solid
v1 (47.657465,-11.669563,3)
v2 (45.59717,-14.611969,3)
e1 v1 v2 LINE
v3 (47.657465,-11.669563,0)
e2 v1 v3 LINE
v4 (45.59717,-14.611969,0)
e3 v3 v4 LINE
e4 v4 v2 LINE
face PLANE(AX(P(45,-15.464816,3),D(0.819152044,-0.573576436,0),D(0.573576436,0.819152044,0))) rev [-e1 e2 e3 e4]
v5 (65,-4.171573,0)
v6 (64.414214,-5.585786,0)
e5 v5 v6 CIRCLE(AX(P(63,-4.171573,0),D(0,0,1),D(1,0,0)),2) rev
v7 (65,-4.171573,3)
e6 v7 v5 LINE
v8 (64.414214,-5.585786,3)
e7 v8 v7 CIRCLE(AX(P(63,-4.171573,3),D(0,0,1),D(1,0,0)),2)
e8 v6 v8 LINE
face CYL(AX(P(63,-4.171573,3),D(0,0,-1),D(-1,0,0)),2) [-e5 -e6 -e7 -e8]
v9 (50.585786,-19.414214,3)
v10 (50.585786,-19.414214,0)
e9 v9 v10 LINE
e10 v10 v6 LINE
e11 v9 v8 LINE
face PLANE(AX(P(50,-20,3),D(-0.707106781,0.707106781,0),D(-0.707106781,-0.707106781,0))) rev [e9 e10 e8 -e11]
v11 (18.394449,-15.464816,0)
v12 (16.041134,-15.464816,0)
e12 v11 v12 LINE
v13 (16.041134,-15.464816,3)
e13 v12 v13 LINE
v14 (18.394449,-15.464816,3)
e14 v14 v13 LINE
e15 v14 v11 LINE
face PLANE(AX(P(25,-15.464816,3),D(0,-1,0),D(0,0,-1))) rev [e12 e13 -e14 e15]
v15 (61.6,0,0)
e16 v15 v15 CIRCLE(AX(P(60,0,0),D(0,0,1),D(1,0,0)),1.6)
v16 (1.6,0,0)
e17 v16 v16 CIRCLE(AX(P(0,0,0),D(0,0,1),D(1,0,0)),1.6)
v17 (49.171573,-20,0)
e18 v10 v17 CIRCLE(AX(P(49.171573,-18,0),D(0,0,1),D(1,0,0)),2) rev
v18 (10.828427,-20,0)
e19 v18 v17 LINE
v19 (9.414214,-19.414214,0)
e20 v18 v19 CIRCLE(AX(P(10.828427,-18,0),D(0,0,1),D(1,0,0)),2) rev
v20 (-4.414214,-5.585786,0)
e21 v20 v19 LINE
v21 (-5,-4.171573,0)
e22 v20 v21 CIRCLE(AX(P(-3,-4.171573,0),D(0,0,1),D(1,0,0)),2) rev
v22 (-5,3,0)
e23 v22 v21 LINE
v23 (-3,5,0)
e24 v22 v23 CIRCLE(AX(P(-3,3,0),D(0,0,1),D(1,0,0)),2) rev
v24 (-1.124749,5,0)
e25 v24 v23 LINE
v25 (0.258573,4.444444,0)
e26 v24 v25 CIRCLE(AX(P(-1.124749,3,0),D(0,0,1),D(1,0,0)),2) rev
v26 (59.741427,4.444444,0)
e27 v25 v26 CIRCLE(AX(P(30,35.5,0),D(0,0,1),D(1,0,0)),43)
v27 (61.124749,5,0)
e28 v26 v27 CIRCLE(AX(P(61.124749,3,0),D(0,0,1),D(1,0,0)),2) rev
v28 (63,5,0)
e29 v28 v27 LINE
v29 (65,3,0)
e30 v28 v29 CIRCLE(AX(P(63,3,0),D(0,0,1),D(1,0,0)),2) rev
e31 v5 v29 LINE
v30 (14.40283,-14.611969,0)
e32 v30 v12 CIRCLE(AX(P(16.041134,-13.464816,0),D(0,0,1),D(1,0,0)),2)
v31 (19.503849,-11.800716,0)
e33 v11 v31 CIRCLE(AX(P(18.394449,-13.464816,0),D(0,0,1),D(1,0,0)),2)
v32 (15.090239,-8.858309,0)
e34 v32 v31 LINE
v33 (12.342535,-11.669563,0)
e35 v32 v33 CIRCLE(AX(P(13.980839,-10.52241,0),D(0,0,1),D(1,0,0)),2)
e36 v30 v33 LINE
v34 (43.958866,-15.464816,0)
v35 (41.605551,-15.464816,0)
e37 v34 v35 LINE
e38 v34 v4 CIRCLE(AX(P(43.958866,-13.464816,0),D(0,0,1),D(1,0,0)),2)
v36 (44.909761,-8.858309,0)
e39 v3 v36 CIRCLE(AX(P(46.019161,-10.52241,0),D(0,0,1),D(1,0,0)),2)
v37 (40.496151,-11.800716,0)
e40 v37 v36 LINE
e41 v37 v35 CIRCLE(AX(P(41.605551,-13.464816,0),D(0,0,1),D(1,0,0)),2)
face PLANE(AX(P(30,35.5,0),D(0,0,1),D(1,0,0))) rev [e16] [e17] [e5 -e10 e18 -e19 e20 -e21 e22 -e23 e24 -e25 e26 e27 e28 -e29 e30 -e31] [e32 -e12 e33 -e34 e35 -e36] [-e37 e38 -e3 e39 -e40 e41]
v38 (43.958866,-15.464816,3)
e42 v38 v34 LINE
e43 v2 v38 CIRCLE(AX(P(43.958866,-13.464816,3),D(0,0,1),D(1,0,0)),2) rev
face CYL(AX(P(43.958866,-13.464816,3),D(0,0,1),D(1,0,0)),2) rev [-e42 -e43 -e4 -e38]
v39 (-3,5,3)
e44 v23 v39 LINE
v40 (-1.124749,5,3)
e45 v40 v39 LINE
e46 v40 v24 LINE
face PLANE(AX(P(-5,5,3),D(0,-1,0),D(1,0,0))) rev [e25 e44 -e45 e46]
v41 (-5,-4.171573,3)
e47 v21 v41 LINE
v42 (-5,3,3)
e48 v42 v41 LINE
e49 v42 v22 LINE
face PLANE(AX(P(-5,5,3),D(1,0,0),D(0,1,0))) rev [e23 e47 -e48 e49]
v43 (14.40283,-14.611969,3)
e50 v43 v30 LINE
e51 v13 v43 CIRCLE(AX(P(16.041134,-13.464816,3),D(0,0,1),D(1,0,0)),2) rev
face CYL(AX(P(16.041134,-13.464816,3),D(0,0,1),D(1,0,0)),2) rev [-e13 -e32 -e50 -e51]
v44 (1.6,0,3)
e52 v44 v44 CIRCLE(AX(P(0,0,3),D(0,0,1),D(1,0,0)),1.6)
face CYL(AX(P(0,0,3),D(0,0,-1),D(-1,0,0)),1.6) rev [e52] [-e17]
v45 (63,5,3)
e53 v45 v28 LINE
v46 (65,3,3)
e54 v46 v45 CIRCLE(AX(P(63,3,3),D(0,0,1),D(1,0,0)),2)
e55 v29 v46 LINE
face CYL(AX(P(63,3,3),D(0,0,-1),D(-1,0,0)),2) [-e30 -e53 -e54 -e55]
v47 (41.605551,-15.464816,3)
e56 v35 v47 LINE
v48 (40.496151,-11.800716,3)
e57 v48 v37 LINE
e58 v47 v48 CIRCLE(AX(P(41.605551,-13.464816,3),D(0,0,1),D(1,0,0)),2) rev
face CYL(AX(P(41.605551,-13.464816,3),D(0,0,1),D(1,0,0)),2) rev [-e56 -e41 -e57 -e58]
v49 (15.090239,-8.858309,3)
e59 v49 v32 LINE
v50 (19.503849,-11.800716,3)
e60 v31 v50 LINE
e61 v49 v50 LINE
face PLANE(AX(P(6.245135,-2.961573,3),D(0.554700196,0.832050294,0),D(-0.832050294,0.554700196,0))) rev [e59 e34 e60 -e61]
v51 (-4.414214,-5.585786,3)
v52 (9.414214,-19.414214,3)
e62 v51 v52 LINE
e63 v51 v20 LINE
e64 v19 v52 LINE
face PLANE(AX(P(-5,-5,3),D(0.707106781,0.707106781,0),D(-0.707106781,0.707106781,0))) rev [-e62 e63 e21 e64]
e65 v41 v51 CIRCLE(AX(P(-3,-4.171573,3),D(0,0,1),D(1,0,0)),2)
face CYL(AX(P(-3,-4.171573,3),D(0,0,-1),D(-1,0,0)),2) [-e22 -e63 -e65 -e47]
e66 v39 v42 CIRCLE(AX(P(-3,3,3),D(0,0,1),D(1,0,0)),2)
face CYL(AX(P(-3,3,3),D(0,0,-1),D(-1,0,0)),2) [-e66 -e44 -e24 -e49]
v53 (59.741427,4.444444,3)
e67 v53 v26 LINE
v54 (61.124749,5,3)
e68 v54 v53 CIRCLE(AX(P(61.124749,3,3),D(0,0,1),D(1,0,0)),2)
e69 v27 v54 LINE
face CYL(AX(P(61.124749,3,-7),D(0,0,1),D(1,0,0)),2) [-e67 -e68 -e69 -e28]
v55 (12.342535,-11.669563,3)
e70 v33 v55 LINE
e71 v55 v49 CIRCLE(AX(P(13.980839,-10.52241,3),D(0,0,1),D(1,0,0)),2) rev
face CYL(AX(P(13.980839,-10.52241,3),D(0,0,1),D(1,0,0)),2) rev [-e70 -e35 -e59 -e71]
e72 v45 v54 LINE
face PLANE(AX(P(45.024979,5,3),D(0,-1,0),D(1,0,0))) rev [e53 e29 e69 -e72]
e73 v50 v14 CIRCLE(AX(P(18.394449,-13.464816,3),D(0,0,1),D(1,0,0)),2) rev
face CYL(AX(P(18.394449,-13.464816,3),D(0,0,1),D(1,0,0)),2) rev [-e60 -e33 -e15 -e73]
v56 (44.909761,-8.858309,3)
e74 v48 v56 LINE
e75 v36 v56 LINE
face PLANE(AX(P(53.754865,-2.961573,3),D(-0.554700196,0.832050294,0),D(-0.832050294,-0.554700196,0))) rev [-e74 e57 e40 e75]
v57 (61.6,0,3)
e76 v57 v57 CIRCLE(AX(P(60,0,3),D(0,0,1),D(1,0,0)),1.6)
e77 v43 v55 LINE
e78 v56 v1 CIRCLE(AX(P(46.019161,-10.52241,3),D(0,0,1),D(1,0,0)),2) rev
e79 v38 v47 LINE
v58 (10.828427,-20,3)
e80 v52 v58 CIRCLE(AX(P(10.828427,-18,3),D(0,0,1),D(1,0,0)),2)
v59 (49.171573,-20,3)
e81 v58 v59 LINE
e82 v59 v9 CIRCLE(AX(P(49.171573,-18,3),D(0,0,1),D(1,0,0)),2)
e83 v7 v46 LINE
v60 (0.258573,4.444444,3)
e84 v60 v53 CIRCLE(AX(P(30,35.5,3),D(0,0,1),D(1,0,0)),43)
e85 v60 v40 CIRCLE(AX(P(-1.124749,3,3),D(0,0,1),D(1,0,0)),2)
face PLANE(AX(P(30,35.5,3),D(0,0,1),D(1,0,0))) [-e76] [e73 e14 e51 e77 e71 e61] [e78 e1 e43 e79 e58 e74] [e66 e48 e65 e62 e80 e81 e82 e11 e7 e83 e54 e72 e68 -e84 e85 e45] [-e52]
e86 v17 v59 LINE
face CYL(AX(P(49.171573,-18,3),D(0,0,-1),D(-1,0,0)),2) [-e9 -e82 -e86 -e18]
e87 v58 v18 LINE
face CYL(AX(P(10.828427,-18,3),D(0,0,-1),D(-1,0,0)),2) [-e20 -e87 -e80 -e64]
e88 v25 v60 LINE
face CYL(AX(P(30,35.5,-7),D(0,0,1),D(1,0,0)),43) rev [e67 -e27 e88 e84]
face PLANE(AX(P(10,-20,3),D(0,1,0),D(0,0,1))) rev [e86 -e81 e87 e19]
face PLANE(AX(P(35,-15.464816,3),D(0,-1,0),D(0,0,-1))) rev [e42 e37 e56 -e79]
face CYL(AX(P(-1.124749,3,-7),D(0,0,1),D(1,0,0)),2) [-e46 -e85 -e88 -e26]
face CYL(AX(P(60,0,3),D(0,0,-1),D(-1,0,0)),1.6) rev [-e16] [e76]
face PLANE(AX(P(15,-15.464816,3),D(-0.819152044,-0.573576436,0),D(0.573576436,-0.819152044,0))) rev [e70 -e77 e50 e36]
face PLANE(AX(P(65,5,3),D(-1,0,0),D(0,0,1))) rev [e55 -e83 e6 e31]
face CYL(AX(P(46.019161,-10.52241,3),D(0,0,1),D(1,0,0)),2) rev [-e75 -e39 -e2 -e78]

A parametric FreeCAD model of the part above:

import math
import FreeCAD as App
import Part
import Sketcher
Q = App.Units.Quantity


def edges_at(feature, points):
    """Names of the edges that pass closest to the given points."""
    edges = feature.Shape.Edges
    near = lambda p: min(range(len(edges)), key=lambda i: edges[i].distToShape(Part.Vertex(*p))[0])
    return sorted({f"Edge{near(p) + 1}" for p in points})

doc = App.newDocument("Part")
params = doc.addObject("Spreadsheet::Sheet", "Params")
for row, (alias, value) in enumerate([
    ("sketch1_radius", "34 mm"),
    ("sketch1_diameter", "3.2 mm"),
    ("sketch1_width", "40 mm"),
    ("sketch1_height", "10 mm"),
    ("pad1_length", "3 mm"),
    ("sketch2_width", "10 mm"),
    ("sketch3_diameter", "86 mm"),
    ("pocket2_length", "10 mm"),
    ("fillet_radius", "2 mm"),
], start=1):
    params.set(f"A{row}", alias)
    params.set(f"B{row}", "=" + value)
    params.setAlias(f"B{row}", alias)

body = doc.addObject("PartDesign::Body", "Body")

# Sketch on XY plane
sketch1 = body.newObject("Sketcher::SketchObject", "Sketch")
sketch1.AttachmentSupport = (doc.getObject("XY_Plane"), [""])
sketch1.MapMode = "FlatFace"
sketch1.addGeometry([
    Part.LineSegment(App.Vector(65, 5, 0), App.Vector(45, 5, 0)),  # 0
    Part.ArcOfCircle(Part.Circle(App.Vector(30, 35.5, 0), App.Vector(0, 0, 1), 34), math.radians(-116), math.radians(-64)),  # 1
    Part.LineSegment(App.Vector(15, 5, 0), App.Vector(-5, 5, 0)),  # 2
    Part.LineSegment(App.Vector(-5, 5, 0), App.Vector(-5, -5, 0)),  # 3
    Part.LineSegment(App.Vector(-5, -5, 0), App.Vector(10, -20, 0)),  # 4
    Part.LineSegment(App.Vector(10, -20, 0), App.Vector(50, -20, 0)),  # 5
    Part.LineSegment(App.Vector(50, -20, 0), App.Vector(65, -5, 0)),  # 6
    Part.LineSegment(App.Vector(65, -5, 0), App.Vector(65, 5, 0)),  # 7
    Part.Circle(App.Vector(60, 0, 0), App.Vector(0, 0, 1), 1.6),  # 8
    Part.Circle(App.Vector(0, 0, 0), App.Vector(0, 0, 1), 1.6),  # 9
], False)
sketch1.addConstraint([
    Sketcher.Constraint("Coincident", 0, 2, 1, 2),
    Sketcher.Constraint("Coincident", 1, 1, 2, 1),
    Sketcher.Constraint("Coincident", 2, 2, 3, 1),
    Sketcher.Constraint("Coincident", 3, 2, 4, 1),
    Sketcher.Constraint("Coincident", 4, 2, 5, 1),
    Sketcher.Constraint("Coincident", 5, 2, 6, 1),
    Sketcher.Constraint("Coincident", 6, 2, 7, 1),
    Sketcher.Constraint("Coincident", 7, 2, 0, 1),
    Sketcher.Constraint("Horizontal", 0),
    Sketcher.Constraint("Horizontal", 2),
    Sketcher.Constraint("Vertical", 3),
    Sketcher.Constraint("Horizontal", 5),
    Sketcher.Constraint("Vertical", 7),
    Sketcher.Constraint("Coincident", 9, 3, -1, 1),
    Sketcher.Constraint("Equal", 8, 9),
    Sketcher.Constraint("PointOnObject", 8, 3, -1),
    Sketcher.Constraint("Perpendicular", 4, 6),
    Sketcher.Constraint("Horizontal", 0, 2, 1, 1),
    Sketcher.Constraint("Horizontal", 3, 2, 6, 2),
    Sketcher.Constraint("Equal", 0, 2),
    Sketcher.Constraint("Equal", 4, 6),
    Sketcher.Constraint("Radius", 1, Q("34 mm")),
    Sketcher.Constraint("Diameter", 8, Q("3.2 mm")),
    Sketcher.Constraint("DistanceX", 5, 1, 5, 2, Q("40 mm")),
    Sketcher.Constraint("DistanceY", 3, 2, 3, 1, Q("10 mm")),
    Sketcher.Constraint("DistanceX", -1, 1, 1, 3, Q("30 mm")),
    Sketcher.Constraint("DistanceX", -1, 1, 8, 3, Q("60 mm")),
    Sketcher.Constraint("DistanceY", -1, 1, 0, 2, Q("5 mm")),
    Sketcher.Constraint("DistanceX", 2, 2, -1, 1, Q("5 mm")),
    Sketcher.Constraint("DistanceY", -1, 1, 1, 3, Q("35.5 mm")),
])
sketch1.setExpression("Constraints[21]", "Params.sketch1_radius")
sketch1.setExpression("Constraints[22]", "Params.sketch1_diameter")
sketch1.setExpression("Constraints[23]", "Params.sketch1_width")
sketch1.setExpression("Constraints[24]", "Params.sketch1_height")
pad1 = body.newObject("PartDesign::Pad", "Pad")
pad1.Profile = sketch1
pad1.setExpression("Length", "Params.pad1_length")

# Sketch on XY plane
sketch2 = body.newObject("Sketcher::SketchObject", "Sketch001")
sketch2.AttachmentSupport = (doc.getObject("XY_Plane"), [""])
sketch2.MapMode = "FlatFace"
sketch2.addGeometry([
    Part.LineSegment(App.Vector(25, -15, 0), App.Vector(15, -15, 0)),  # 0
    Part.LineSegment(App.Vector(15, -15, 0), App.Vector(6, -3, 0)),  # 1
    Part.LineSegment(App.Vector(6, -3, 0), App.Vector(25, -15, 0)),  # 2
    Part.LineSegment(App.Vector(35, -15, 0), App.Vector(54, -3, 0)),  # 3
    Part.LineSegment(App.Vector(54, -3, 0), App.Vector(45, -15, 0)),  # 4
    Part.LineSegment(App.Vector(45, -15, 0), App.Vector(35, -15, 0)),  # 5
], False)
sketch2.addConstraint([
    Sketcher.Constraint("Coincident", 0, 2, 1, 1),
    Sketcher.Constraint("Coincident", 1, 2, 2, 1),
    Sketcher.Constraint("Coincident", 2, 2, 0, 1),
    Sketcher.Constraint("Coincident", 3, 2, 4, 1),
    Sketcher.Constraint("Coincident", 4, 2, 5, 1),
    Sketcher.Constraint("Coincident", 5, 2, 3, 1),
    Sketcher.Constraint("Horizontal", 0),
    Sketcher.Constraint("Horizontal", 5),
    Sketcher.Constraint("Horizontal", 1, 2, 3, 2),
    Sketcher.Constraint("Horizontal", 2, 2, 4, 2),
    Sketcher.Constraint("Equal", 0, 5),
    Sketcher.Constraint("Equal", 2, 3),
    Sketcher.Constraint("DistanceX", 0, 2, 0, 1, Q("10 mm")),
    Sketcher.Constraint("Angle", 1, Q("125 deg")),
    Sketcher.Constraint("DistanceX", -1, 1, 0, 2, Q("15 mm")),
    Sketcher.Constraint("DistanceX", -1, 1, 4, 2, Q("45 mm")),
    Sketcher.Constraint("DistanceX", 1, 2, 3, 2, Q("47.509731 mm")),
    Sketcher.Constraint("DistanceY", 0, 2, -1, 1, Q("15.464816 mm")),
])
sketch2.setExpression("Constraints[12]", "Params.sketch2_width")
pocket1 = body.newObject("PartDesign::Pocket", "Pocket")
pocket1.Profile = sketch2
pocket1.Type = "ThroughAll"
pocket1.Reversed = True

# Sketch on XY plane
sketch3 = body.newObject("Sketcher::SketchObject", "Sketch002")
sketch3.AttachmentSupport = (doc.getObject("XY_Plane"), [""])
sketch3.MapMode = "FlatFace"
sketch3.AttachmentOffset = App.Placement(App.Vector(0, 0, 3), App.Rotation())
sketch3.addGeometry(Part.Circle(App.Vector(30, 36, 0), App.Vector(0, 0, 1), 43), False)
sketch3.addConstraint([
    Sketcher.Constraint("Diameter", 0, Q("86 mm")),
    Sketcher.Constraint("DistanceX", -1, 1, 0, 3, Q("30 mm")),
    Sketcher.Constraint("DistanceY", -1, 1, 0, 3, Q("35.5 mm")),
])
sketch3.setExpression("Constraints[0]", "Params.sketch3_diameter")
pocket2 = body.newObject("PartDesign::Pocket", "Pocket001")
pocket2.Profile = sketch3
pocket2.setExpression("Length", "Params.pocket2_length")
doc.recompute()

fillet = body.newObject("PartDesign::Fillet", "Fillet")
fillet.Base = (pocket2, edges_at(pocket2, [
    (50, -20, 1.5),
    (10, -20, 1.5),
    (-5, -5, 1.5),
    (-5, 5, 1.5),
    (65, 5, 1.5),
    (65, -5, 1.5),
    (25, -15.465, 1.5),
    (6.245, -2.962, 1.5),
    (15, -15.465, 1.5),
    (45, -15.465, 1.5),
    (53.755, -2.962, 1.5),
    (35, -15.465, 1.5),
    (-0.311, 5, 1.5),
    (60.311, 5, 1.5),
]))
fillet.setExpression("Radius", "Params.fillet_radius")

doc.recompute()
